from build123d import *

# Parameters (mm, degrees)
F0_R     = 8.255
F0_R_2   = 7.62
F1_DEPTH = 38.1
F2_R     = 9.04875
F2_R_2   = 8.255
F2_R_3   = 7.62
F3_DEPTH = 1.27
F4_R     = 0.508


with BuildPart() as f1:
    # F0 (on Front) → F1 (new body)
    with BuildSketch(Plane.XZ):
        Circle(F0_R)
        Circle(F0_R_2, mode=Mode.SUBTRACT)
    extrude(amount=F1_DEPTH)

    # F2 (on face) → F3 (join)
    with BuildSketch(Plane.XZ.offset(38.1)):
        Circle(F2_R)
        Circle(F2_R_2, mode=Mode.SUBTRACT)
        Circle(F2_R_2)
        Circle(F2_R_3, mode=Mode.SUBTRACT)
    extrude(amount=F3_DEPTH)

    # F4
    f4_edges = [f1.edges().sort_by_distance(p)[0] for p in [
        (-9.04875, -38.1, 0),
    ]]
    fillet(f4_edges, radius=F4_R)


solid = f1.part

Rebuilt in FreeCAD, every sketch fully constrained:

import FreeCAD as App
import Part
import Sketcher
from FreeCAD import Vector
Q = App.Units.Quantity


def edges_at(feature, points):
    """Names of the edges that pass closest to the given points."""
    edges = feature.Shape.Edges
    near = lambda p: min(range(len(edges)), key=lambda i: edges[i].distToShape(Part.Vertex(*p))[0])
    return sorted({f"Edge{near(p) + 1}" for p in points})

doc = App.newDocument("Part")
body = doc.addObject("PartDesign::Body", "Body")

# Sketch on XZ plane
sketch1 = doc.addObject("Sketcher::SketchObject", "Sketch")
body.addObject(sketch1)
sketch1.AttachmentSupport = (doc.XZ_Plane, [""])
sketch1.MapMode = "FlatFace"
sketch1.addGeometry([
    Part.Circle(Vector(0, 0, 0), Vector(0, 0, 1), 8),
    Part.Circle(Vector(0, 0, 0), Vector(0, 0, 1), 8),
], False)
sketch1.addConstraint([
    Sketcher.Constraint("Coincident", 0, 3, -1, 1),
    Sketcher.Constraint("Coincident", 1, 3, -1, 1),
    Sketcher.Constraint("Diameter", 1, Q("0.6 in")),
    Sketcher.Constraint("Diameter", 0, Q("0.65 in")),
])
pad1 = doc.addObject("PartDesign::Pad", "Pad")
body.addObject(pad1)
pad1.Profile = sketch1
pad1.Length = Q("1.5 in")

# Sketch on XZ plane
sketch2 = doc.addObject("Sketcher::SketchObject", "Sketch001")
body.addObject(sketch2)
sketch2.AttachmentSupport = (doc.XZ_Plane, [""])
sketch2.MapMode = "FlatFace"
sketch2.AttachmentOffset = App.Placement(Vector(0, 0, 1.5 * 25.4), App.Rotation())
sketch2.addGeometry([
    Part.Circle(Vector(0, 0, 0), Vector(0, 0, 1), 9),
    Part.Circle(Vector(0, 0, 0), Vector(0, 0, 1), 8),
], False)
sketch2.addConstraint([
    Sketcher.Constraint("Coincident", 0, 3, -1, 1),
    Sketcher.Constraint("Coincident", 1, 3, -1, 1),
    Sketcher.Constraint("Diameter", 1, Q("0.6 in")),
    Sketcher.Constraint("Diameter", 0, Q("0.7125 in")),
])
pad2 = doc.addObject("PartDesign::Pad", "Pad001")
body.addObject(pad2)
pad2.Profile = sketch2
pad2.Length = Q("0.05 in")
doc.recompute()

fillet = doc.addObject("PartDesign::Fillet", "Fillet")
body.addObject(fillet)
fillet.Base = (pad2, edges_at(pad2, [(-9.049, -38.1, 0)]))
fillet.Radius = Q("0.02 in")

doc.recompute()
